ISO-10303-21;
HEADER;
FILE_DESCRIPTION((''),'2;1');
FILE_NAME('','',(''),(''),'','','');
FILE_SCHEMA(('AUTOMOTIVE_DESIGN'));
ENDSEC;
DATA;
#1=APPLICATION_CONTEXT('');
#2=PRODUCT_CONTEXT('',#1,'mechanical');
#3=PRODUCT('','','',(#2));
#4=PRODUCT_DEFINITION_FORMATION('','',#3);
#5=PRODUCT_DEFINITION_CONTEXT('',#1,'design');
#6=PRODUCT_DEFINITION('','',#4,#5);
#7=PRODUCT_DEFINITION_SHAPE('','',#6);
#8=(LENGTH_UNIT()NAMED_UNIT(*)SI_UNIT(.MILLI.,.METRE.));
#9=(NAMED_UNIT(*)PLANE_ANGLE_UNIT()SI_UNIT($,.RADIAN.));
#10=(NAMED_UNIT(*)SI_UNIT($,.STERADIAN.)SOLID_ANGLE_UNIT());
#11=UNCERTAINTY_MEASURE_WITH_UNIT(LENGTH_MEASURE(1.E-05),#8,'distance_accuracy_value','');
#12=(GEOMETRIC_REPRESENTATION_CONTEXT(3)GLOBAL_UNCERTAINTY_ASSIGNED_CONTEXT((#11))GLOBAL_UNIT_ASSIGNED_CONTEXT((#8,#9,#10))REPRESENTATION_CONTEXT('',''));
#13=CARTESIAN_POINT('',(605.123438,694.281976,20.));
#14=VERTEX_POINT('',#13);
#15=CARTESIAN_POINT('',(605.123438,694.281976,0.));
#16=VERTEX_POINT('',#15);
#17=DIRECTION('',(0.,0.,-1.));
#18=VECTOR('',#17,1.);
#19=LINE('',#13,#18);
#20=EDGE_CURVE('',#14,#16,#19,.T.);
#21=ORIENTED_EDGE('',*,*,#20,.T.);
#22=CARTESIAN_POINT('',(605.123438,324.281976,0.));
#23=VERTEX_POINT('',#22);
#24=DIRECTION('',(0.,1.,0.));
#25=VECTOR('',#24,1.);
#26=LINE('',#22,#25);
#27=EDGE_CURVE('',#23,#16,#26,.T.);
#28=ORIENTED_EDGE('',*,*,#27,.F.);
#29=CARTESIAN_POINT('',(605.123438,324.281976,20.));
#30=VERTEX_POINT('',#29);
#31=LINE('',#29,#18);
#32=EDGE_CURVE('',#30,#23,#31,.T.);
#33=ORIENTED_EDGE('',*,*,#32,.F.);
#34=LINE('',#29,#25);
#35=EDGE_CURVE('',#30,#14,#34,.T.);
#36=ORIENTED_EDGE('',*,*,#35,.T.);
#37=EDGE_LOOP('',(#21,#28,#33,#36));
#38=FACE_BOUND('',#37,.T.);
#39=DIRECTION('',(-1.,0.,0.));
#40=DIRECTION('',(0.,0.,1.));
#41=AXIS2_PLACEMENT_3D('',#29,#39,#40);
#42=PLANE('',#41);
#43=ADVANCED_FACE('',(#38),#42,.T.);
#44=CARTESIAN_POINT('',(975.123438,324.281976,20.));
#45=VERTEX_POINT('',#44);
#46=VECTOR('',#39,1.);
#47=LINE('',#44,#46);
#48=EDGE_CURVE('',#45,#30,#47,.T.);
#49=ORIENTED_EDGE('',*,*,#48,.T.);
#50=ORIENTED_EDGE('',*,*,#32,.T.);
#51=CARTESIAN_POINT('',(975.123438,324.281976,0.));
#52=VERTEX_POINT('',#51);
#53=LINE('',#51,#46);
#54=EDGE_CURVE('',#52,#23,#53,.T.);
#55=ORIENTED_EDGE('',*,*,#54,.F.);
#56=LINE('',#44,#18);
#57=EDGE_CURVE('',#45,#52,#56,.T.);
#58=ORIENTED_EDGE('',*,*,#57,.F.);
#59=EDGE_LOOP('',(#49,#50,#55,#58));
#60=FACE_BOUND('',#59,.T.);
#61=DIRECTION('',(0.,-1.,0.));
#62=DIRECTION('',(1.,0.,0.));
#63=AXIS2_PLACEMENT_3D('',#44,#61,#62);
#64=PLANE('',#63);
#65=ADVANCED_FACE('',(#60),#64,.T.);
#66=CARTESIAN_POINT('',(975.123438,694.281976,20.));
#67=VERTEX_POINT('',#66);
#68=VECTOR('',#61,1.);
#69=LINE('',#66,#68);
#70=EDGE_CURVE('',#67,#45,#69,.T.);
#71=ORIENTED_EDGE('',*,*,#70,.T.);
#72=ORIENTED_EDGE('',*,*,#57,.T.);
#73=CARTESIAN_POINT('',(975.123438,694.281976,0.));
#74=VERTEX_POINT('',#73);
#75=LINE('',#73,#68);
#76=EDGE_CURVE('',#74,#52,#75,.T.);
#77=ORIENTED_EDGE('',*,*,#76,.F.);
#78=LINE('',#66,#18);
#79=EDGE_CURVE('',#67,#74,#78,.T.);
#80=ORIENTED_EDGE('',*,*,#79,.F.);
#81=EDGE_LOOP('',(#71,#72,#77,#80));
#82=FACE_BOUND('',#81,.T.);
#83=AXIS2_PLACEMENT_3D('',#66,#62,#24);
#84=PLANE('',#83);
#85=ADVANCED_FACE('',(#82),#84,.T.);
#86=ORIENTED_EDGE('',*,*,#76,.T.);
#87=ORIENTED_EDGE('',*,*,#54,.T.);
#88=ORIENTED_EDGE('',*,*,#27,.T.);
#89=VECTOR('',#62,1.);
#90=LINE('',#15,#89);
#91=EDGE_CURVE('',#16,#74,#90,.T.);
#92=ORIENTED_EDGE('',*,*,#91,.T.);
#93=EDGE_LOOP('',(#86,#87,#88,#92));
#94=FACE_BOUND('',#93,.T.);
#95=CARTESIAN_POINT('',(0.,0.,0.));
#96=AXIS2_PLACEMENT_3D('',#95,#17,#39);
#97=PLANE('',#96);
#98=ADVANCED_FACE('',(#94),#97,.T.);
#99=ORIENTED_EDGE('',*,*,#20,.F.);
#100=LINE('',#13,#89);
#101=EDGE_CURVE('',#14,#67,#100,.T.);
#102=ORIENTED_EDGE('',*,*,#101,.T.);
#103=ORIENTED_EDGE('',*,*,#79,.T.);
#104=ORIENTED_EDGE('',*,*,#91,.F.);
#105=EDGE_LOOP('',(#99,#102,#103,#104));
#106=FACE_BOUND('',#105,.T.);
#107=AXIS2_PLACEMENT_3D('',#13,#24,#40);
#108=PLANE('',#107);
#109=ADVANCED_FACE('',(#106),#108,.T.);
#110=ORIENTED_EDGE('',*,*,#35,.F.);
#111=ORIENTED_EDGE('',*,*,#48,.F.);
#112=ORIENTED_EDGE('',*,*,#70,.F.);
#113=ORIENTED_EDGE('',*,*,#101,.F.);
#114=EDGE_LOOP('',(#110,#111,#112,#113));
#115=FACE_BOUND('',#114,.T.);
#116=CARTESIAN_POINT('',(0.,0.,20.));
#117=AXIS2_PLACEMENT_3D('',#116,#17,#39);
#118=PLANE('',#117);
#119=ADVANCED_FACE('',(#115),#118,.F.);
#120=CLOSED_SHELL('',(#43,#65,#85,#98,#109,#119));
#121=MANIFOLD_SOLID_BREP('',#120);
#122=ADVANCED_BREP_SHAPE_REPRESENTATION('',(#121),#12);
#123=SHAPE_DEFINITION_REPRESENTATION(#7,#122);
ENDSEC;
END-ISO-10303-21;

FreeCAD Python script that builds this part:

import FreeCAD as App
import Part
import Sketcher

V = App.Vector
Q = App.Units.Quantity

doc = App.newDocument("Part")
params = doc.addObject("Spreadsheet::Sheet", "Params")
for row, (alias, value) in enumerate([
    ("sketch1_width", "370 mm"),
    ("pad1_length", "20 mm"),
], start=1):
    params.set(f"A{row}", alias)
    params.set(f"B{row}", "=" + value)
    params.setAlias(f"B{row}", alias)

body = doc.addObject("PartDesign::Body", "Body")

sketch1 = body.newObject("Sketcher::SketchObject", "Sketch")
sketch1.AttachmentSupport = (doc.getObject("XY_Plane"), [""])
sketch1.MapMode = "FlatFace"
sketch1.addGeometry([
    Part.LineSegment(V(605.123438, 694.281976, 0), V(605.123438, 324.281976, 0)),
    Part.LineSegment(V(605.123438, 324.281976, 0), V(975.123438, 324.281976, 0)),
    Part.LineSegment(V(975.123438, 324.281976, 0), V(975.123438, 694.281976, 0)),
    Part.LineSegment(V(975.123438, 694.281976, 0), V(605.123438, 694.281976, 0)),
], False)
sketch1.addConstraint([
    Sketcher.Constraint("Coincident", 0, 2, 1, 1),
    Sketcher.Constraint("Coincident", 1, 2, 2, 1),
    Sketcher.Constraint("Coincident", 2, 2, 3, 1),
    Sketcher.Constraint("Coincident", 3, 2, 0, 1),
    Sketcher.Constraint("Vertical", 0),
    Sketcher.Constraint("Horizontal", 1),
    Sketcher.Constraint("Vertical", 2),
    Sketcher.Constraint("Horizontal", 3),
    Sketcher.Constraint("Equal", 3, 0),
    Sketcher.Constraint("DistanceX", 1, 1, 1, 2, Q("370 mm")),
    Sketcher.Constraint("DistanceX", -1, 1, 0, 2, Q("605.123438 mm")),
    Sketcher.Constraint("DistanceY", -1, 1, 0, 2, Q("324.281976 mm")),
])
sketch1.setExpression("Constraints[9]", "Params.sketch1_width")
pad1 = body.newObject("PartDesign::Pad", "Pad")
pad1.Profile = sketch1
pad1.setExpression("Length", "Params.pad1_length")

doc.recompute()
